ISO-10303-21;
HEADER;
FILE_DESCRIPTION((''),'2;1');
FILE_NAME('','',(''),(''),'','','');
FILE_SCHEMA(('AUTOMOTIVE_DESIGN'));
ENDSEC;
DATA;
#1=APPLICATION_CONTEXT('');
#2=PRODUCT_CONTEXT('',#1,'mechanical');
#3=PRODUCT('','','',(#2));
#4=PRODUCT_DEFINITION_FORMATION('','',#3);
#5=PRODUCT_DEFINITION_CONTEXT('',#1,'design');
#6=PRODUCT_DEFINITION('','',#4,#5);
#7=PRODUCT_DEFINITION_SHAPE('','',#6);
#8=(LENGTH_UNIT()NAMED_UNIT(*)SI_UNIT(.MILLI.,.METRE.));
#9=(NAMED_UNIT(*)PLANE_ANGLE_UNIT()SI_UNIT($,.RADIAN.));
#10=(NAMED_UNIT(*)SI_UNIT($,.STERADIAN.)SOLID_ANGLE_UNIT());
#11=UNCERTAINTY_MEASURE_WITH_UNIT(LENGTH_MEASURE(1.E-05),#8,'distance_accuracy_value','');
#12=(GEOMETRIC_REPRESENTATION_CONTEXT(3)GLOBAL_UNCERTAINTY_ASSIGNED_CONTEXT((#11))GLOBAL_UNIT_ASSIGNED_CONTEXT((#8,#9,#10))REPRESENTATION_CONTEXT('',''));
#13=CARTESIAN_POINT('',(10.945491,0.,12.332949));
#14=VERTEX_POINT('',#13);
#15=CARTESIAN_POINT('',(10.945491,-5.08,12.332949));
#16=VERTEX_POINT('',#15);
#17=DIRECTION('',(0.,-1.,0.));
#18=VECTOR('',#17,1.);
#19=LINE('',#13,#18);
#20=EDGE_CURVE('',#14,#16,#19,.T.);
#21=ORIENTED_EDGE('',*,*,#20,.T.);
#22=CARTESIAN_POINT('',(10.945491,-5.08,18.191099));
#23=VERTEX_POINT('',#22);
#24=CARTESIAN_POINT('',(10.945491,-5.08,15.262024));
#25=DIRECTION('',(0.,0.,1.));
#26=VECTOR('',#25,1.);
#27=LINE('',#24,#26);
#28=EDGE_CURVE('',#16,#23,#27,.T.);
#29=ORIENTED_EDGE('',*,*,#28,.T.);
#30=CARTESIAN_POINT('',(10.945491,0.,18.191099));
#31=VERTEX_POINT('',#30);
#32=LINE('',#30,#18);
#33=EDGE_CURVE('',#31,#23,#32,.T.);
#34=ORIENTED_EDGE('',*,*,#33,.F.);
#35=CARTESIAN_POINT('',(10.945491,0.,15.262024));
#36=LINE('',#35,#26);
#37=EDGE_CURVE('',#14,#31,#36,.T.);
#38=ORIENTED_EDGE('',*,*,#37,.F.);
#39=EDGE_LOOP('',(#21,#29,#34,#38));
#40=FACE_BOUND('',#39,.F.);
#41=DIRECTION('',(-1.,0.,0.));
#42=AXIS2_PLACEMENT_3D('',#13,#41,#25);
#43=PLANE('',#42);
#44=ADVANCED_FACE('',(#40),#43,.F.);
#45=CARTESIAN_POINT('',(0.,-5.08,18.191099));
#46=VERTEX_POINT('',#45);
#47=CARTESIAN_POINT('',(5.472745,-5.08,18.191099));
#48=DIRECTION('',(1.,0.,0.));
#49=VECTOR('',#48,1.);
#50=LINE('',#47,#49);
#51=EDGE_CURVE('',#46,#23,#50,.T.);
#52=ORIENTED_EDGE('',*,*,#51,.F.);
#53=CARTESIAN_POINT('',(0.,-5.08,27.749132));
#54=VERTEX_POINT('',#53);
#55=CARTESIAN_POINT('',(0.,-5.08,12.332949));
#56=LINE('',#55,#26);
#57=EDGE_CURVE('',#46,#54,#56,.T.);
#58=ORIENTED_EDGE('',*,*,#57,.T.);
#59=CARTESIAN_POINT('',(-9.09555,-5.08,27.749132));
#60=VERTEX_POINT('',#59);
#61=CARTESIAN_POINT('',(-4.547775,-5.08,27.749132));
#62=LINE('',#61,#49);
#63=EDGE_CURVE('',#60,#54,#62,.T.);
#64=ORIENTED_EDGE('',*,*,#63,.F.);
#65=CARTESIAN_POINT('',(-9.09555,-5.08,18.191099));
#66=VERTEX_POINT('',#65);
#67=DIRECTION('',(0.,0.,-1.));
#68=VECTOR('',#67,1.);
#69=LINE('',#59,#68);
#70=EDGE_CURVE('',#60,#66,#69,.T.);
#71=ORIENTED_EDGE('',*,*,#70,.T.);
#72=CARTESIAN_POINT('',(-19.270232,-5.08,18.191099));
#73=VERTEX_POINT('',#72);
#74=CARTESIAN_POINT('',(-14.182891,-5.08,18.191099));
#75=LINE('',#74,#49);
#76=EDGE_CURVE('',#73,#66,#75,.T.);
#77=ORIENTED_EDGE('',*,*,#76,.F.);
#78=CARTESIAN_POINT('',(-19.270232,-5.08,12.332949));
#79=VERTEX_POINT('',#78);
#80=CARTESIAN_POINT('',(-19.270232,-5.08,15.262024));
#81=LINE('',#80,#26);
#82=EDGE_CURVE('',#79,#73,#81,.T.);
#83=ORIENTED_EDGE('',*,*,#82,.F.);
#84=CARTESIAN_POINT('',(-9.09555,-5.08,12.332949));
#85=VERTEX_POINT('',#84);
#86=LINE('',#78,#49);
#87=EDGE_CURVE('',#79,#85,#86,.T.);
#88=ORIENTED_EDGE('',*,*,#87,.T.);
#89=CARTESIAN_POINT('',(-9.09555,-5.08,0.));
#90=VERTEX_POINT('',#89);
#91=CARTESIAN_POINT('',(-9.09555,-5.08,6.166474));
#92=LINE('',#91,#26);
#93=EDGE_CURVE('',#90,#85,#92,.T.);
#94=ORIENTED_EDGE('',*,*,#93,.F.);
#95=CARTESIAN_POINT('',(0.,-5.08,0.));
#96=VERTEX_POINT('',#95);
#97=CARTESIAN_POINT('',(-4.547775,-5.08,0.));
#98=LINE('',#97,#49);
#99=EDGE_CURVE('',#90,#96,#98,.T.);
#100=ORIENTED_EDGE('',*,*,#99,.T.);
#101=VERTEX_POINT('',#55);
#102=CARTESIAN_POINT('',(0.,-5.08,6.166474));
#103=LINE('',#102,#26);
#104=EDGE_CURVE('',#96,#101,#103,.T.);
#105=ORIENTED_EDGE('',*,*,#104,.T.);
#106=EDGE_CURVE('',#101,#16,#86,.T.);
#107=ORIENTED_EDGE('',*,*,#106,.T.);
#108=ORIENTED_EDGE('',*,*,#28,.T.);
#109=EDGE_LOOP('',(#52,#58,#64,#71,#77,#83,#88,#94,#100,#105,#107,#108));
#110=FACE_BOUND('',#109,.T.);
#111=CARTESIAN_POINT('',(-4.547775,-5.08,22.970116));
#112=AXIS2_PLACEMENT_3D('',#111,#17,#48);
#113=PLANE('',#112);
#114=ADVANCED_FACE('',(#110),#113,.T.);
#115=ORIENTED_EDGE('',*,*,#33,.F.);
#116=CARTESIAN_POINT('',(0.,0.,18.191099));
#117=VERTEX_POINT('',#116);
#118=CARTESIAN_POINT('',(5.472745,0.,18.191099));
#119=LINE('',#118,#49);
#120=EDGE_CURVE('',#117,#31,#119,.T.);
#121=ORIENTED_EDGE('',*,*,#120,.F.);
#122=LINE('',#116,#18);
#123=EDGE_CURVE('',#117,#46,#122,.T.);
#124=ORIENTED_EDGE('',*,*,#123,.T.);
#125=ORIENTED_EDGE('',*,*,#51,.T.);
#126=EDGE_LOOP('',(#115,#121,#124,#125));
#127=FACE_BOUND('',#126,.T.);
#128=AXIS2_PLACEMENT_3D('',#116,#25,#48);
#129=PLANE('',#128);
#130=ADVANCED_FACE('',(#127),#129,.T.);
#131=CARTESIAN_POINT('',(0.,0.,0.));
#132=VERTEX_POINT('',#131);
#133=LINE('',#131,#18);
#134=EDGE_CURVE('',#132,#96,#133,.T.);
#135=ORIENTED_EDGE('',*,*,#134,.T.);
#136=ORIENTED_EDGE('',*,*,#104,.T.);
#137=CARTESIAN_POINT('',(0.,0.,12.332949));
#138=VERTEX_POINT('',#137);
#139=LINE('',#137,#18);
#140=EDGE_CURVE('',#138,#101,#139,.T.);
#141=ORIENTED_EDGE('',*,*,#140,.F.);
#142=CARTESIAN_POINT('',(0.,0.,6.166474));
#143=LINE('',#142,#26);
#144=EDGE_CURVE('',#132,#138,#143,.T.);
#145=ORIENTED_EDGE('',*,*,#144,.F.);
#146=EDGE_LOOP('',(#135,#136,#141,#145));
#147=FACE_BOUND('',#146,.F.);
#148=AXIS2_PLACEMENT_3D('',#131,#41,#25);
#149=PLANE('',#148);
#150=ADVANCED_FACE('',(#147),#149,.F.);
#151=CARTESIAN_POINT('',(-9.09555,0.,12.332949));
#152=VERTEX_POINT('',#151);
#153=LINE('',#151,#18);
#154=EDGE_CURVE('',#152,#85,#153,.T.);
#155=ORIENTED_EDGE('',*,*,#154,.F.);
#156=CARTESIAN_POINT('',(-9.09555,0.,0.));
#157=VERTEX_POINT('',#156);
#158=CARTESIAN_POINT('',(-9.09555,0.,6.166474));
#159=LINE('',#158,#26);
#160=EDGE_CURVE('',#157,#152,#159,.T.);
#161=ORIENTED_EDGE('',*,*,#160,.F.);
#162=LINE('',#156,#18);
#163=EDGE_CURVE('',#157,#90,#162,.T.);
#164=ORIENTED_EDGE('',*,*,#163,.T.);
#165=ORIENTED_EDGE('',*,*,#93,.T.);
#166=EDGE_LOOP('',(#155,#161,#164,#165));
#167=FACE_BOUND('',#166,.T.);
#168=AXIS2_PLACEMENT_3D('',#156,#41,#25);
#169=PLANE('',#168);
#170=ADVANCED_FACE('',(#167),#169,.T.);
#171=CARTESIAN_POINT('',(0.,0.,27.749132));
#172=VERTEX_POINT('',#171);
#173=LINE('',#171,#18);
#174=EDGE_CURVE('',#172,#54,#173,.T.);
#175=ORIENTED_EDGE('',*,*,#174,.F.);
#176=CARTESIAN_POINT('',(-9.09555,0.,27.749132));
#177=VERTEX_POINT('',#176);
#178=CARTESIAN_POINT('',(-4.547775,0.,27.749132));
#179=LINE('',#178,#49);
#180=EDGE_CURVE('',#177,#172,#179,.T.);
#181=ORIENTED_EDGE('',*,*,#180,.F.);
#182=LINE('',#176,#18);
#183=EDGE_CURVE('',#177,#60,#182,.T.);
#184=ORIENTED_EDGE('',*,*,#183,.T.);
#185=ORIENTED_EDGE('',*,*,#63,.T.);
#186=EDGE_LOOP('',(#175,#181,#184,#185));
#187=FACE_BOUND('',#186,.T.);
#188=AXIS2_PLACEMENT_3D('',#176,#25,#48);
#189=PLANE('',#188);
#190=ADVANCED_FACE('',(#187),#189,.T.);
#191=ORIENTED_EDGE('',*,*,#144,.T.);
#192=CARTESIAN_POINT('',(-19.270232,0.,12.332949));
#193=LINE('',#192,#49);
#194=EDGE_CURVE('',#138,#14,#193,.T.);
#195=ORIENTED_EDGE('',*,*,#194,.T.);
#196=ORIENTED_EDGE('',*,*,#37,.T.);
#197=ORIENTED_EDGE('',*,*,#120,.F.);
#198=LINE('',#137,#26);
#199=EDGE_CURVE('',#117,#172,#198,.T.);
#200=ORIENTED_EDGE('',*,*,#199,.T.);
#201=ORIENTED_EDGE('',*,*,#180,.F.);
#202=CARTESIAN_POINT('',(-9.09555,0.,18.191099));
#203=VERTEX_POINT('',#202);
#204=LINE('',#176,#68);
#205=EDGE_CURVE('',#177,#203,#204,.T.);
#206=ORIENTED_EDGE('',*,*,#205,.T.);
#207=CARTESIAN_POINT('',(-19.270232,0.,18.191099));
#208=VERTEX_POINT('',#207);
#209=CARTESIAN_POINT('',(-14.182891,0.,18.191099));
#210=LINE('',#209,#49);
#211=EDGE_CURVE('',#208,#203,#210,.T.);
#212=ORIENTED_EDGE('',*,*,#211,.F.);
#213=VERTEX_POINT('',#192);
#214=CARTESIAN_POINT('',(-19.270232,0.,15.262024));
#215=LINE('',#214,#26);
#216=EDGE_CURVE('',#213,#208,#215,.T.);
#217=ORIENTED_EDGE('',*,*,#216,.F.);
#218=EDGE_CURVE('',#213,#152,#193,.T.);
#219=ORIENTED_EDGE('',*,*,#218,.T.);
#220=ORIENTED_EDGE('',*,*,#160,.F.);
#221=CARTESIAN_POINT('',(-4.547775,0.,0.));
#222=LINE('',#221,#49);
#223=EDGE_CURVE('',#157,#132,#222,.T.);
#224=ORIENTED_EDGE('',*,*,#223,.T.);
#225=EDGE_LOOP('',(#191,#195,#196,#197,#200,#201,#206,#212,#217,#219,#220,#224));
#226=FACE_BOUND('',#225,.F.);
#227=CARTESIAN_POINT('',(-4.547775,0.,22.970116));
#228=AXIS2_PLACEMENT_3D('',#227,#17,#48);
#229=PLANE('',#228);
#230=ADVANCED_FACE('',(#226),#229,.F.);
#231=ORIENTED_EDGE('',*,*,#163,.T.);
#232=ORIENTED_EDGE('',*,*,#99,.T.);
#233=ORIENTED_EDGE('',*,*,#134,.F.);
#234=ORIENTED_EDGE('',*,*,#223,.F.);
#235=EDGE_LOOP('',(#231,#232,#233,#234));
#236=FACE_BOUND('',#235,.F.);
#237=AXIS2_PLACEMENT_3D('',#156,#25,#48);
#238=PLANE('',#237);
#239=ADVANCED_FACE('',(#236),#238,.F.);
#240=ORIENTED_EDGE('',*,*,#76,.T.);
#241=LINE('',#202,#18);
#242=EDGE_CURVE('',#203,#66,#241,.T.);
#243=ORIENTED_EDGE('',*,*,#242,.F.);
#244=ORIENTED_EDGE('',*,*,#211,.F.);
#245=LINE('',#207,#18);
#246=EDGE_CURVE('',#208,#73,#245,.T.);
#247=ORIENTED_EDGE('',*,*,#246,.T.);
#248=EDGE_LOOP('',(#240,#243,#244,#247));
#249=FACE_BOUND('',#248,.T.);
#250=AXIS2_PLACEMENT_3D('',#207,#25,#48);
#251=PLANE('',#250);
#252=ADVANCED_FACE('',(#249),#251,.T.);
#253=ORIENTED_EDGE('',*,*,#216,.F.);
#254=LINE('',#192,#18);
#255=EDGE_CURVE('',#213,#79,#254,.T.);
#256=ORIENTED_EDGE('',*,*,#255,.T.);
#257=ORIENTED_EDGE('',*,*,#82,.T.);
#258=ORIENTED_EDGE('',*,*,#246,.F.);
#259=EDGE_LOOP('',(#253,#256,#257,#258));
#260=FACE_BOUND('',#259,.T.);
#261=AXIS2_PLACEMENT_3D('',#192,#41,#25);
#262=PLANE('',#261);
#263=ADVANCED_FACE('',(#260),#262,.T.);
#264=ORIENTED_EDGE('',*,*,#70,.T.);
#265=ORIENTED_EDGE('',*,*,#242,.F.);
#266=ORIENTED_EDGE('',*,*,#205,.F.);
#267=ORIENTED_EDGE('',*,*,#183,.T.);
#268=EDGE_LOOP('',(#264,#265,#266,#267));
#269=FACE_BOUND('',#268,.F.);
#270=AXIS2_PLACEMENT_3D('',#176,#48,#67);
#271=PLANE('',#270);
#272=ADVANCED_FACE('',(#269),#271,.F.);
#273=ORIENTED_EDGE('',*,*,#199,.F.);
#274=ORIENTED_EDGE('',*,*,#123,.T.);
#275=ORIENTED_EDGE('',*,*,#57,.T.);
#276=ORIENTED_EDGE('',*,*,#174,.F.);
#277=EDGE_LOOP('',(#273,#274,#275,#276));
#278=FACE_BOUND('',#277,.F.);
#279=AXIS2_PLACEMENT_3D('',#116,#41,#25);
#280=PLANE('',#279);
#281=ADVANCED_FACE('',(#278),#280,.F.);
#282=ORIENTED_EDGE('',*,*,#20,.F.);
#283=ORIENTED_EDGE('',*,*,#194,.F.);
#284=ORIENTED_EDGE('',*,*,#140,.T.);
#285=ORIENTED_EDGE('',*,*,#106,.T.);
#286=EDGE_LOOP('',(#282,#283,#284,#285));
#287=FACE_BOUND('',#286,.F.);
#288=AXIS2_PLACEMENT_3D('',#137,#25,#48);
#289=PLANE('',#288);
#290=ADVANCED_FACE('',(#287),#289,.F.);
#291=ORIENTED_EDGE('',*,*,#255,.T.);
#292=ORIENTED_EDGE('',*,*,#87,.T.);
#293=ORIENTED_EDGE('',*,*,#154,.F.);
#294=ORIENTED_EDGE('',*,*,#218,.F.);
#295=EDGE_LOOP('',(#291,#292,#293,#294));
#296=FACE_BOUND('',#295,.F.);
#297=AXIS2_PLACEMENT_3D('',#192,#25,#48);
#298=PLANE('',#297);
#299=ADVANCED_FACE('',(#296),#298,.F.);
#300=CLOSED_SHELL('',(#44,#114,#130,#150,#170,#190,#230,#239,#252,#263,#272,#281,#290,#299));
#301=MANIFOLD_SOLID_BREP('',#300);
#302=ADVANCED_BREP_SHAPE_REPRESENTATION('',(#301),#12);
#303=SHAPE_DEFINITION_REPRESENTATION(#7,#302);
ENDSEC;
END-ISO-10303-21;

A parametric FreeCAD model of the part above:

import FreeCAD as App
import Part
import Sketcher

V = App.Vector

doc = App.newDocument("Part")
params = doc.addObject("Spreadsheet::Sheet", "Params")
for row, (alias, value) in enumerate([
    ("pad1_length", "0.2 in"),
], start=1):
    params.set(f"A{row}", alias)
    params.set(f"B{row}", "=" + value)
    params.setAlias(f"B{row}", alias)

body = doc.addObject("PartDesign::Body", "Body")

# Sketch on XZ plane
sketch1 = body.newObject("Sketcher::SketchObject", "Sketch")
sketch1.AttachmentSupport = (doc.getObject("XZ_Plane"), [""])
sketch1.MapMode = "FlatFace"
sketch1.addGeometry(Part.LineSegment(V(-9.09555, 27.749132, 0), V(-9.09555, 18.191099, 0)), False)
sketch1.addGeometry(Part.LineSegment(V(-9.09555, 18.191099, 0), V(-19.270232, 18.191099, 0)), False)
sketch1.addGeometry(Part.LineSegment(V(-19.270232, 18.191099, 0), V(-19.270232, 12.332949, 0)), False)
sketch1.addGeometry(Part.LineSegment(V(-19.270232, 12.332949, 0), V(-9.09555, 12.332949, 0)), False)
sketch1.addGeometry(Part.LineSegment(V(-9.09555, 12.332949, 0), V(-9.09555, 0, 0)), False)
sketch1.addGeometry(Part.LineSegment(V(-9.09555, 0, 0), V(0, 0, 0)), False)
sketch1.addGeometry(Part.LineSegment(V(0, 0, 0), V(0, 12.332949, 0)), False)
sketch1.addGeometry(Part.LineSegment(V(0, 12.332949, 0), V(10.945491, 12.332949, 0)), False)
sketch1.addGeometry(Part.LineSegment(V(10.945491, 12.332949, 0), V(10.945491, 18.191099, 0)), False)
sketch1.addGeometry(Part.LineSegment(V(10.945491, 18.191099, 0), V(0, 18.191099, 0)), False)
sketch1.addGeometry(Part.LineSegment(V(0, 18.191099, 0), V(0, 27.749132, 0)), False)
sketch1.addGeometry(Part.LineSegment(V(0, 27.749132, 0), V(-9.09555, 27.749132, 0)), False)
sketch1.addConstraint(Sketcher.Constraint("Coincident", 0, 2, 1, 1))
sketch1.addConstraint(Sketcher.Constraint("Coincident", 1, 2, 2, 1))
sketch1.addConstraint(Sketcher.Constraint("Coincident", 2, 2, 3, 1))
sketch1.addConstraint(Sketcher.Constraint("Coincident", 3, 2, 4, 1))
sketch1.addConstraint(Sketcher.Constraint("Coincident", 4, 2, 5, 1))
sketch1.addConstraint(Sketcher.Constraint("Coincident", 5, 2, 6, 1))
sketch1.addConstraint(Sketcher.Constraint("Coincident", 6, 2, 7, 1))
sketch1.addConstraint(Sketcher.Constraint("Coincident", 7, 2, 8, 1))
sketch1.addConstraint(Sketcher.Constraint("Coincident", 8, 2, 9, 1))
sketch1.addConstraint(Sketcher.Constraint("Coincident", 9, 2, 10, 1))
sketch1.addConstraint(Sketcher.Constraint("Coincident", 10, 2, 11, 1))
sketch1.addConstraint(Sketcher.Constraint("Coincident", 11, 2, 0, 1))
sketch1.addConstraint(Sketcher.Constraint("Vertical", 0))
sketch1.addConstraint(Sketcher.Constraint("Horizontal", 1))
sketch1.addConstraint(Sketcher.Constraint("Vertical", 2))
sketch1.addConstraint(Sketcher.Constraint("Horizontal", 3))
sketch1.addConstraint(Sketcher.Constraint("Vertical", 4))
sketch1.addConstraint(Sketcher.Constraint("Horizontal", 5))
sketch1.addConstraint(Sketcher.Constraint("Vertical", 6))
sketch1.addConstraint(Sketcher.Constraint("Horizontal", 7))
sketch1.addConstraint(Sketcher.Constraint("Vertical", 8))
sketch1.addConstraint(Sketcher.Constraint("Horizontal", 9))
sketch1.addConstraint(Sketcher.Constraint("Vertical", 10))
sketch1.addConstraint(Sketcher.Constraint("Horizontal", 11))
sketch1.addConstraint(Sketcher.Constraint("Coincident", 5, 2, -1, 1))
sketch1.addConstraint(Sketcher.Constraint("PointOnObject", 9, 2, -2))
sketch1.addConstraint(Sketcher.Constraint("Horizontal", 3, 2, 6, 2))
sketch1.addConstraint(Sketcher.Constraint("Horizontal", 1, 2, 8, 2))
sketch1.addConstraint(Sketcher.Constraint("Vertical", 0, 2, 3, 2))
sketch1.addConstraint(Sketcher.Constraint("DistanceX", 5, 1, 5, 2, 9.09555))
sketch1.addConstraint(Sketcher.Constraint("DistanceX", 7, 1, 7, 2, 10.945491))
sketch1.addConstraint(Sketcher.Constraint("DistanceY", 2, 2, 2, 1, 5.85815))
sketch1.addConstraint(Sketcher.Constraint("DistanceY", 4, 2, 4, 1, 12.332949))
sketch1.addConstraint(Sketcher.Constraint("DistanceX", 1, 2, 1, 1, 10.174682))
sketch1.addConstraint(Sketcher.Constraint("DistanceY", 0, 2, 0, 1, 9.558033))
pad1 = body.newObject("PartDesign::Pad", "Pad")
pad1.Profile = sketch1
pad1.setExpression("Length", "Params.pad1_length")

doc.recompute()
